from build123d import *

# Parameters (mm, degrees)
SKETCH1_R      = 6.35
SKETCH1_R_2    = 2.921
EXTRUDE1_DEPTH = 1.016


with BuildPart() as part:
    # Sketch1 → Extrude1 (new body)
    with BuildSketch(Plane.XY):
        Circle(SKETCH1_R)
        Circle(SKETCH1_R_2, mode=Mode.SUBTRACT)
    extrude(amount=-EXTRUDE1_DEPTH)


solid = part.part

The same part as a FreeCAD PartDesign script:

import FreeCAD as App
import Part
import Sketcher
Q = App.Units.Quantity

doc = App.newDocument("Part")
params = doc.addObject("Spreadsheet::Sheet", "Params")
for row, (alias, value) in enumerate([
    ("sketch1_diameter", "0.5 in"),
    ("sketch1_diameter2", "0.23 in"),
    ("pad1_length", "0.04 in"),
], start=1):
    params.set(f"A{row}", alias)
    params.set(f"B{row}", "=" + value)
    params.setAlias(f"B{row}", alias)

body = doc.addObject("PartDesign::Body", "Body")

sketch1 = body.newObject("Sketcher::SketchObject", "Sketch")
sketch1.AttachmentSupport = (doc.getObject("XY_Plane"), [""])
sketch1.MapMode = "FlatFace"
sketch1.addGeometry([
    Part.Circle(App.Vector(0, 0, 0), App.Vector(0, 0, 1), 6.3),
    Part.Circle(App.Vector(0, 0, 0), App.Vector(0, 0, 1), 2.9),
], False)
sketch1.addConstraint([
    Sketcher.Constraint("Coincident", 0, 3, -1, 1),
    Sketcher.Constraint("Coincident", 1, 3, -1, 1),
    Sketcher.Constraint("Diameter", 0, Q("0.5 in")),
    Sketcher.Constraint("Diameter", 1, Q("0.23 in")),
])
sketch1.setExpression("Constraints[2]", "Params.sketch1_diameter")
sketch1.setExpression("Constraints[3]", "Params.sketch1_diameter2")
pad1 = body.newObject("PartDesign::Pad", "Pad")
pad1.Profile = sketch1
pad1.setExpression("Length", "Params.pad1_length")
pad1.Reversed = True

doc.recompute()
